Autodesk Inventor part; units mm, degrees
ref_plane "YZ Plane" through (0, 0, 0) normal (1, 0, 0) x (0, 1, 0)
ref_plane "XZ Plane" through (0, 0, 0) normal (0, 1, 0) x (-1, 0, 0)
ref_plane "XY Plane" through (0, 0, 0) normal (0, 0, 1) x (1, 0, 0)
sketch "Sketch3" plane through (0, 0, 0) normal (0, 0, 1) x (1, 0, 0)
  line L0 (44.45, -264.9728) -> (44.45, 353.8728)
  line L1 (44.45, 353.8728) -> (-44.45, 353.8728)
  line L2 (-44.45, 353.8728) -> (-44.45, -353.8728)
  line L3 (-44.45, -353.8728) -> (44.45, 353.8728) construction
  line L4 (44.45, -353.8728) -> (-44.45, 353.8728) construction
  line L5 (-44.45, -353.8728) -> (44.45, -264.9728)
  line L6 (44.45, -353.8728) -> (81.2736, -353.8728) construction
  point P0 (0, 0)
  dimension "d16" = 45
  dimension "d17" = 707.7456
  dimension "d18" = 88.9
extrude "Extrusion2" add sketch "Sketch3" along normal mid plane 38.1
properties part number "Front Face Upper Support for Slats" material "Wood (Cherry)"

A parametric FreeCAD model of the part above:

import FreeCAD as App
import Part
import Sketcher
Q = App.Units.Quantity

doc = App.newDocument("Part")
body = doc.addObject("PartDesign::Body", "Body")

# Sketch on XY plane
sketch1 = doc.addObject("Sketcher::SketchObject", "Sketch")
body.addObject(sketch1)
sketch1.AttachmentSupport = (doc.XY_Plane, [""])
sketch1.MapMode = "FlatFace"
sketch1.addGeometry([
    Part.LineSegment(App.Vector(-44, -354, 0), App.Vector(44, -265, 0)),
    Part.LineSegment(App.Vector(44, -265, 0), App.Vector(44, 354, 0)),
    Part.LineSegment(App.Vector(44, 354, 0), App.Vector(-44, 354, 0)),
    Part.LineSegment(App.Vector(-44, 354, 0), App.Vector(-44, -354, 0)),
], False)
sketch1.addConstraint([
    Sketcher.Constraint("Coincident", 0, 2, 1, 1),
    Sketcher.Constraint("Coincident", 1, 2, 2, 1),
    Sketcher.Constraint("Coincident", 2, 2, 3, 1),
    Sketcher.Constraint("Coincident", 3, 2, 0, 1),
    Sketcher.Constraint("Vertical", 1),
    Sketcher.Constraint("Horizontal", 2),
    Sketcher.Constraint("Vertical", 3),
    Sketcher.Constraint("Symmetric", 1, 2, 3, 2, -1, 1),
    Sketcher.Constraint("DistanceX", 2, 2, 2, 1, Q("3.5 in")),
    Sketcher.Constraint("Angle", 0, Q("45 deg")),
    Sketcher.Constraint("DistanceY", 3, 2, 3, 1, Q("27.864 in")),
])
pad1 = doc.addObject("PartDesign::Pad", "Pad")
body.addObject(pad1)
pad1.Profile = sketch1
pad1.Length = Q("1.5 in")
pad1.Midplane = True

doc.recompute()
